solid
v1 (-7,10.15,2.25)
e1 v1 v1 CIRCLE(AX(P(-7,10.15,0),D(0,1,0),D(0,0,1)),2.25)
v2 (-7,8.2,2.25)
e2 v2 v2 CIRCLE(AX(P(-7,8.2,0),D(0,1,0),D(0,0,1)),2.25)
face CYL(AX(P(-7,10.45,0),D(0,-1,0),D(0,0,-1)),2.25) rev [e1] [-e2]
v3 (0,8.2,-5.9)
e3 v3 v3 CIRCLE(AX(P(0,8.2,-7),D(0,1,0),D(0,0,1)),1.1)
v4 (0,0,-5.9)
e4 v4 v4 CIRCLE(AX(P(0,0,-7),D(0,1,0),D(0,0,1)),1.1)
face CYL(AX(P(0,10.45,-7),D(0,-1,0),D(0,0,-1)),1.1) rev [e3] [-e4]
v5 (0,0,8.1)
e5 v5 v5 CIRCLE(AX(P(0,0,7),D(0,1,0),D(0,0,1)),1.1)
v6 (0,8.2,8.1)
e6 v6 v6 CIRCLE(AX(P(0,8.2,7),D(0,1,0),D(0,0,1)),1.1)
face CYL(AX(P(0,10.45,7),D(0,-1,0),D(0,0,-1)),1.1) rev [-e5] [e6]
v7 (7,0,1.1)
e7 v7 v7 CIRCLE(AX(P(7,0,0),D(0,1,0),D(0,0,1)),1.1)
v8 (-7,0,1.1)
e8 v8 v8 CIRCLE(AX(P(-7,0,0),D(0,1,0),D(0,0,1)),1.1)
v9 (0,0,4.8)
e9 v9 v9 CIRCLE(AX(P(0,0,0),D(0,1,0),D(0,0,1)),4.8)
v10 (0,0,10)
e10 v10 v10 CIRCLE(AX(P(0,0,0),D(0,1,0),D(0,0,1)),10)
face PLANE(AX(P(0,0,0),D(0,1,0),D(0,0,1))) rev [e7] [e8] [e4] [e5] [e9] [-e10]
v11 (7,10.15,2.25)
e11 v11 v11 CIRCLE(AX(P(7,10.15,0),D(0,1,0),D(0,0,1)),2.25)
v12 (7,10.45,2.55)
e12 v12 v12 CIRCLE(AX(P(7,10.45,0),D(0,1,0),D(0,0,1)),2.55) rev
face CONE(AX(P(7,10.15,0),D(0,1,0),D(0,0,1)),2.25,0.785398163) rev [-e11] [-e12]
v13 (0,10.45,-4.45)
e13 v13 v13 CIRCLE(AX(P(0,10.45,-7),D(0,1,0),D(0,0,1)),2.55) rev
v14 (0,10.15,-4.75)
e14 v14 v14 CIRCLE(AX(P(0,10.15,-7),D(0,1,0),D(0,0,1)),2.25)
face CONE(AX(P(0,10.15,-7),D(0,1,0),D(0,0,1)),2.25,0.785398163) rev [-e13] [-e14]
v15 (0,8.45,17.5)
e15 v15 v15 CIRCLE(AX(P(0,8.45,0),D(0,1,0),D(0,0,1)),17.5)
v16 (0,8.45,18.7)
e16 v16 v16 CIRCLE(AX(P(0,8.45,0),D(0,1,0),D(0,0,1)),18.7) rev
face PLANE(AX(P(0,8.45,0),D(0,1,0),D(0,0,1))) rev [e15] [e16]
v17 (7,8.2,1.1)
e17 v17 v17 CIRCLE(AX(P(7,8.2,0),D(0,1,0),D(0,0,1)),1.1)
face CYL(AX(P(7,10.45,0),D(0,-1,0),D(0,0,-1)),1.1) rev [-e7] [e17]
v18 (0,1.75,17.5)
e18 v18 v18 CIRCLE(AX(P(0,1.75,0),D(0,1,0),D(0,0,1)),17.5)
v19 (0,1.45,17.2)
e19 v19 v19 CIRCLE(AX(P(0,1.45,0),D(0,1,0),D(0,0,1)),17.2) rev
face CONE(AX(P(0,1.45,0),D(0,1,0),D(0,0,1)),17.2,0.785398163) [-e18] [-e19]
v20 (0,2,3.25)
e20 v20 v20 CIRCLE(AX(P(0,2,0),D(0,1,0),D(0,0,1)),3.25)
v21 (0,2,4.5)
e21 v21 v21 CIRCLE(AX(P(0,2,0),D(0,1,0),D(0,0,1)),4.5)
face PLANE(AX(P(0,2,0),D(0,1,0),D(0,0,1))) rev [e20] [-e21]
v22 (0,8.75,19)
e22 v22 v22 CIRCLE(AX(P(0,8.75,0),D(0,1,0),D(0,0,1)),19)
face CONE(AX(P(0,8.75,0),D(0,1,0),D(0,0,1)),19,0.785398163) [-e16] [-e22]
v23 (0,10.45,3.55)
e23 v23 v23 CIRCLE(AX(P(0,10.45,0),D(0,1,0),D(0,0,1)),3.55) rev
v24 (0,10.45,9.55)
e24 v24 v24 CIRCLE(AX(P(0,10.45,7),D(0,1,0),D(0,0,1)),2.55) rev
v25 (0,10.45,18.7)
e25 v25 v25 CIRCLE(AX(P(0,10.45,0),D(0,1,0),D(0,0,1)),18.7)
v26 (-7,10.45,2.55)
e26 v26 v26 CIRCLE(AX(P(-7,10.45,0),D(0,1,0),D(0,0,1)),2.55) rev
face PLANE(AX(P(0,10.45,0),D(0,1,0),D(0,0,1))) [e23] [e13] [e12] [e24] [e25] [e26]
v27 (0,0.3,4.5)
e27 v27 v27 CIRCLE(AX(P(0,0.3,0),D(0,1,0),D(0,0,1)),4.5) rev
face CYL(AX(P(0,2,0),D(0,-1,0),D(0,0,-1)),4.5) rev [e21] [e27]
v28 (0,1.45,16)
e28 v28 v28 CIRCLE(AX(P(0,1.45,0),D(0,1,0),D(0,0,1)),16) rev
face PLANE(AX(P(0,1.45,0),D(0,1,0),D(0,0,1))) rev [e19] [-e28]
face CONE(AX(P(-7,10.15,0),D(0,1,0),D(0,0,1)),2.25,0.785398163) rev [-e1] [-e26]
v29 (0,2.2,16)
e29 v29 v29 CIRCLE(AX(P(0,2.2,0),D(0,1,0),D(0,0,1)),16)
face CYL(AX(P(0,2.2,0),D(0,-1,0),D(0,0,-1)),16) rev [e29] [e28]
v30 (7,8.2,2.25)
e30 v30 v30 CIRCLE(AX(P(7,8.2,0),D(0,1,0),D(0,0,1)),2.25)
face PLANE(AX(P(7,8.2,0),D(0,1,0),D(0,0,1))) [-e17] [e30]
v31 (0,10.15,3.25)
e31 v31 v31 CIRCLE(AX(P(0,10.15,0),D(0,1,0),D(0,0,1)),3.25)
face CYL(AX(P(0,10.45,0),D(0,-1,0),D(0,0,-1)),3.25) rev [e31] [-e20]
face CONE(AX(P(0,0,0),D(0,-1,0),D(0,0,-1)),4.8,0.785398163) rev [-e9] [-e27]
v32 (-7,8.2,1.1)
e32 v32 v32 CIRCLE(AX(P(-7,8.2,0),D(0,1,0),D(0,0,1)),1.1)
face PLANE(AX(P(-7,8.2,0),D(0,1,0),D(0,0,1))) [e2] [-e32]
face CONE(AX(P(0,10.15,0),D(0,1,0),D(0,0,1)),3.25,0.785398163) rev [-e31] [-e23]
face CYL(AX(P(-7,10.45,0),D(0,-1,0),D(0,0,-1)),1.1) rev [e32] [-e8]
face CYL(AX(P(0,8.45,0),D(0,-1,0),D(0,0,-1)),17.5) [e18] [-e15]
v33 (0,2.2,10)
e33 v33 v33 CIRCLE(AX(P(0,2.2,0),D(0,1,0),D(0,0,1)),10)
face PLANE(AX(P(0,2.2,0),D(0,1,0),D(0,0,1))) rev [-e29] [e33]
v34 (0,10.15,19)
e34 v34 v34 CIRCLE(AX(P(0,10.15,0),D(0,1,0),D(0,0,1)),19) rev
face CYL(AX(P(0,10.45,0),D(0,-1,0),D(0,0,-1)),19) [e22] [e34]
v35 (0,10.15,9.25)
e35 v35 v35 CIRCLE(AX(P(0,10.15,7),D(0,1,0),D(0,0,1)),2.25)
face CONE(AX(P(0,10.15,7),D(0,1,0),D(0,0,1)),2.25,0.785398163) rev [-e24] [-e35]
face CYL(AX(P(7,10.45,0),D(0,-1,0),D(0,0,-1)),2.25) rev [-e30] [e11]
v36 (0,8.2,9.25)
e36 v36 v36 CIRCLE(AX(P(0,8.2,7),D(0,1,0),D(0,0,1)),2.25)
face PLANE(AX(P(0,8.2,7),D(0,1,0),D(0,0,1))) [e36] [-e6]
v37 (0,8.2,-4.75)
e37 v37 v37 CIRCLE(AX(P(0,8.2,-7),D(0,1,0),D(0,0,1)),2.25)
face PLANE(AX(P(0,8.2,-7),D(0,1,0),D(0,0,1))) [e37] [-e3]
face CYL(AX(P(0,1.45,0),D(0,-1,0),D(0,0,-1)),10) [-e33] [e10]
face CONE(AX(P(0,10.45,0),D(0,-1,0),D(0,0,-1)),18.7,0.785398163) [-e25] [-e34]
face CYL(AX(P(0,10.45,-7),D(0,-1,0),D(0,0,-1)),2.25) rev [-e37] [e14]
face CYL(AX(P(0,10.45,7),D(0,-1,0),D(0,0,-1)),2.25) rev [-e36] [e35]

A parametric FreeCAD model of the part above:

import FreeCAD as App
import Part
import Sketcher


def edges_at(feature, points):
    """Names of the edges that pass closest to the given points."""
    edges = feature.Shape.Edges
    near = lambda p: min(range(len(edges)), key=lambda i: edges[i].distToShape(Part.Vertex(*p))[0])
    return sorted({f"Edge{near(p) + 1}" for p in points})

doc = App.newDocument("Part")
body = doc.addObject("PartDesign::Body", "Body")

sketch1 = body.newObject("Sketcher::SketchObject", "Sketch")
sketch1.AttachmentSupport = (doc.getObject("XZ_Plane"), [""])
sketch1.MapMode = "FlatFace"
sketch1.addGeometry(Part.Circle(App.Vector(0, 0, 0), App.Vector(0, 0, 1), 19), False)
sketch1.addConstraint([
    Sketcher.Constraint("Coincident", 0, 3, -1, 1),
    Sketcher.Constraint("Diameter", 0, 38.0),
])
pad1 = body.newObject("PartDesign::Pad", "Pad")
pad1.Profile = sketch1
pad1.Length = 10.45
pad1.Reversed = True

sketch2 = body.newObject("Sketcher::SketchObject", "Sketch001")
sketch2.AttachmentSupport = (doc.getObject("XZ_Plane"), [""])
sketch2.MapMode = "FlatFace"
sketch2.addGeometry([
    Part.Circle(App.Vector(0, 0, 0), App.Vector(0, 0, 1), 36),
    Part.Circle(App.Vector(0, 0, 0), App.Vector(0, 0, 1), 10),
], False)
sketch2.addConstraint([
    Sketcher.Constraint("Coincident", 0, 3, -1, 1),
    Sketcher.Constraint("Coincident", 1, 3, -1, 1),
    Sketcher.Constraint("Diameter", 1, 20.0),
    Sketcher.Constraint("Diameter", 0, 71.756734),
])
pocket1 = body.newObject("PartDesign::Pocket", "Pocket")
pocket1.Profile = sketch2
pocket1.Length = 1.45

sketch3 = body.newObject("Sketcher::SketchObject", "Sketch002")
sketch3.AttachmentSupport = (doc.getObject("XZ_Plane"), [""])
sketch3.MapMode = "FlatFace"
sketch3.addGeometry([
    Part.Circle(App.Vector(0, 0, 0), App.Vector(0, 0, 1), 36),
    Part.Circle(App.Vector(0, 0, 0), App.Vector(0, 0, 1), 18),
], False)
sketch3.addConstraint([
    Sketcher.Constraint("Coincident", 0, 3, -1, 1),
    Sketcher.Constraint("Coincident", 1, 3, -1, 1),
    Sketcher.Constraint("Diameter", 1, 35.0),
    Sketcher.Constraint("Diameter", 0, 71.756734),
])
pocket2 = body.newObject("PartDesign::Pocket", "Pocket001")
pocket2.Profile = sketch3
pocket2.Length = 8.45

sketch4 = body.newObject("Sketcher::SketchObject", "Sketch003")
sketch4.AttachmentSupport = (doc.getObject("XZ_Plane"), [""])
sketch4.MapMode = "FlatFace"
sketch4.addGeometry([
    Part.Circle(App.Vector(0, 0, 0), App.Vector(0, 0, 1), 3.2),
    Part.Circle(App.Vector(0, -7, 0), App.Vector(0, 0, 1), 1.1),
    Part.Circle(App.Vector(-7, 0, 0), App.Vector(0, 0, 1), 1.1),
    Part.Circle(App.Vector(0, 7, 0), App.Vector(0, 0, 1), 1.1),
    Part.Circle(App.Vector(7, 0, 0), App.Vector(0, 0, 1), 1.1),
], False)
sketch4.addConstraint([
    Sketcher.Constraint("Coincident", 0, 3, -1, 1),
    Sketcher.Constraint("Equal", 1, 2),
    Sketcher.Constraint("Equal", 2, 3),
    Sketcher.Constraint("Equal", 3, 4),
    Sketcher.Constraint("Symmetric", 1, 3, 3, 3, -1, 1),
    Sketcher.Constraint("Symmetric", 2, 3, 4, 3, -1, 1),
    Sketcher.Constraint("PointOnObject", 1, 3, -2),
    Sketcher.Constraint("PointOnObject", 2, 3, -1),
    Sketcher.Constraint("Diameter", 0, 6.5),
    Sketcher.Constraint("Diameter", 1, 2.2),
    Sketcher.Constraint("DistanceY", 1, 3, -1, 1, 7.0),
    Sketcher.Constraint("DistanceX", 2, 3, -1, 1, 7.0),
])
pocket3 = body.newObject("PartDesign::Pocket", "Pocket002")
pocket3.Profile = sketch4
pocket3.Type = "ThroughAll"

sketch5 = body.newObject("Sketcher::SketchObject", "Sketch004")
sketch5.AttachmentSupport = (doc.getObject("XZ_Plane"), [""])
sketch5.MapMode = "FlatFace"
sketch5.AttachmentOffset = App.Placement(App.Vector(0, 0, -8.2), App.Rotation())
sketch5.addGeometry([
    Part.Circle(App.Vector(0, -7, 0), App.Vector(0, 0, 1), 2.2),
    Part.Circle(App.Vector(7, 0, 0), App.Vector(0, 0, 1), 2.2),
    Part.Circle(App.Vector(0, 7, 0), App.Vector(0, 0, 1), 2.2),
    Part.Circle(App.Vector(-7, 0, 0), App.Vector(0, 0, 1), 2.2),
], False)
sketch5.addConstraint([
    Sketcher.Constraint("Equal", 0, 1),
    Sketcher.Constraint("Equal", 1, 2),
    Sketcher.Constraint("Equal", 2, 3),
    Sketcher.Constraint("Symmetric", 0, 3, 2, 3, -1, 1),
    Sketcher.Constraint("Symmetric", 1, 3, 3, 3, -1, 1),
    Sketcher.Constraint("PointOnObject", 0, 3, -2),
    Sketcher.Constraint("PointOnObject", 1, 3, -1),
    Sketcher.Constraint("Diameter", 0, 4.5),
    Sketcher.Constraint("DistanceY", 0, 3, -1, 1, 7.0),
    Sketcher.Constraint("DistanceX", -1, 1, 1, 3, 7.0),
])
pocket4 = body.newObject("PartDesign::Pocket", "Pocket003")
pocket4.Profile = sketch5
pocket4.Type = "ThroughAll"

sketch6 = body.newObject("Sketcher::SketchObject", "Sketch005")
sketch6.AttachmentSupport = (doc.getObject("XZ_Plane"), [""])
sketch6.MapMode = "FlatFace"
sketch6.addGeometry([
    Part.Circle(App.Vector(0, 0, 0), App.Vector(0, 0, 1), 16),
    Part.Circle(App.Vector(0, 0, 0), App.Vector(0, 0, 1), 10),
], False)
sketch6.addConstraint([
    Sketcher.Constraint("Coincident", 0, 3, -1, 1),
    Sketcher.Constraint("Coincident", 1, 3, -1, 1),
    Sketcher.Constraint("Diameter", 0, 32.0),
    Sketcher.Constraint("Diameter", 1, 20.0),
])
pocket5 = body.newObject("PartDesign::Pocket", "Pocket004")
pocket5.Profile = sketch6
pocket5.Length = 2.2

sketch7 = body.newObject("Sketcher::SketchObject", "Sketch006")
sketch7.AttachmentSupport = (doc.getObject("XZ_Plane"), [""])
sketch7.MapMode = "FlatFace"
sketch7.addGeometry(Part.Circle(App.Vector(0, 0, 0), App.Vector(0, 0, 1), 4.5), False)
sketch7.addConstraint([
    Sketcher.Constraint("Coincident", 0, 3, -1, 1),
    Sketcher.Constraint("Diameter", 0, 9.0),
])
pocket6 = body.newObject("PartDesign::Pocket", "Pocket005")
pocket6.Profile = sketch7
pocket6.Length = 2
doc.recompute()

chamfer = body.newObject("PartDesign::Chamfer", "Chamfer")
chamfer.Base = (pocket6, edges_at(pocket6, [
    (0, 8.45, -19),
    (0, 1.45, -17.5),
    (0, 10.45, -3.25),
    (0, 10.45, -19),
    (-7, 10.45, -2.25),
    (0, 10.45, -9.25),
    (7, 10.45, -2.25),
    (0, 10.45, 4.75),
    (0, 0, -4.5),
]))
chamfer.Size = 0.3

doc.recompute()
